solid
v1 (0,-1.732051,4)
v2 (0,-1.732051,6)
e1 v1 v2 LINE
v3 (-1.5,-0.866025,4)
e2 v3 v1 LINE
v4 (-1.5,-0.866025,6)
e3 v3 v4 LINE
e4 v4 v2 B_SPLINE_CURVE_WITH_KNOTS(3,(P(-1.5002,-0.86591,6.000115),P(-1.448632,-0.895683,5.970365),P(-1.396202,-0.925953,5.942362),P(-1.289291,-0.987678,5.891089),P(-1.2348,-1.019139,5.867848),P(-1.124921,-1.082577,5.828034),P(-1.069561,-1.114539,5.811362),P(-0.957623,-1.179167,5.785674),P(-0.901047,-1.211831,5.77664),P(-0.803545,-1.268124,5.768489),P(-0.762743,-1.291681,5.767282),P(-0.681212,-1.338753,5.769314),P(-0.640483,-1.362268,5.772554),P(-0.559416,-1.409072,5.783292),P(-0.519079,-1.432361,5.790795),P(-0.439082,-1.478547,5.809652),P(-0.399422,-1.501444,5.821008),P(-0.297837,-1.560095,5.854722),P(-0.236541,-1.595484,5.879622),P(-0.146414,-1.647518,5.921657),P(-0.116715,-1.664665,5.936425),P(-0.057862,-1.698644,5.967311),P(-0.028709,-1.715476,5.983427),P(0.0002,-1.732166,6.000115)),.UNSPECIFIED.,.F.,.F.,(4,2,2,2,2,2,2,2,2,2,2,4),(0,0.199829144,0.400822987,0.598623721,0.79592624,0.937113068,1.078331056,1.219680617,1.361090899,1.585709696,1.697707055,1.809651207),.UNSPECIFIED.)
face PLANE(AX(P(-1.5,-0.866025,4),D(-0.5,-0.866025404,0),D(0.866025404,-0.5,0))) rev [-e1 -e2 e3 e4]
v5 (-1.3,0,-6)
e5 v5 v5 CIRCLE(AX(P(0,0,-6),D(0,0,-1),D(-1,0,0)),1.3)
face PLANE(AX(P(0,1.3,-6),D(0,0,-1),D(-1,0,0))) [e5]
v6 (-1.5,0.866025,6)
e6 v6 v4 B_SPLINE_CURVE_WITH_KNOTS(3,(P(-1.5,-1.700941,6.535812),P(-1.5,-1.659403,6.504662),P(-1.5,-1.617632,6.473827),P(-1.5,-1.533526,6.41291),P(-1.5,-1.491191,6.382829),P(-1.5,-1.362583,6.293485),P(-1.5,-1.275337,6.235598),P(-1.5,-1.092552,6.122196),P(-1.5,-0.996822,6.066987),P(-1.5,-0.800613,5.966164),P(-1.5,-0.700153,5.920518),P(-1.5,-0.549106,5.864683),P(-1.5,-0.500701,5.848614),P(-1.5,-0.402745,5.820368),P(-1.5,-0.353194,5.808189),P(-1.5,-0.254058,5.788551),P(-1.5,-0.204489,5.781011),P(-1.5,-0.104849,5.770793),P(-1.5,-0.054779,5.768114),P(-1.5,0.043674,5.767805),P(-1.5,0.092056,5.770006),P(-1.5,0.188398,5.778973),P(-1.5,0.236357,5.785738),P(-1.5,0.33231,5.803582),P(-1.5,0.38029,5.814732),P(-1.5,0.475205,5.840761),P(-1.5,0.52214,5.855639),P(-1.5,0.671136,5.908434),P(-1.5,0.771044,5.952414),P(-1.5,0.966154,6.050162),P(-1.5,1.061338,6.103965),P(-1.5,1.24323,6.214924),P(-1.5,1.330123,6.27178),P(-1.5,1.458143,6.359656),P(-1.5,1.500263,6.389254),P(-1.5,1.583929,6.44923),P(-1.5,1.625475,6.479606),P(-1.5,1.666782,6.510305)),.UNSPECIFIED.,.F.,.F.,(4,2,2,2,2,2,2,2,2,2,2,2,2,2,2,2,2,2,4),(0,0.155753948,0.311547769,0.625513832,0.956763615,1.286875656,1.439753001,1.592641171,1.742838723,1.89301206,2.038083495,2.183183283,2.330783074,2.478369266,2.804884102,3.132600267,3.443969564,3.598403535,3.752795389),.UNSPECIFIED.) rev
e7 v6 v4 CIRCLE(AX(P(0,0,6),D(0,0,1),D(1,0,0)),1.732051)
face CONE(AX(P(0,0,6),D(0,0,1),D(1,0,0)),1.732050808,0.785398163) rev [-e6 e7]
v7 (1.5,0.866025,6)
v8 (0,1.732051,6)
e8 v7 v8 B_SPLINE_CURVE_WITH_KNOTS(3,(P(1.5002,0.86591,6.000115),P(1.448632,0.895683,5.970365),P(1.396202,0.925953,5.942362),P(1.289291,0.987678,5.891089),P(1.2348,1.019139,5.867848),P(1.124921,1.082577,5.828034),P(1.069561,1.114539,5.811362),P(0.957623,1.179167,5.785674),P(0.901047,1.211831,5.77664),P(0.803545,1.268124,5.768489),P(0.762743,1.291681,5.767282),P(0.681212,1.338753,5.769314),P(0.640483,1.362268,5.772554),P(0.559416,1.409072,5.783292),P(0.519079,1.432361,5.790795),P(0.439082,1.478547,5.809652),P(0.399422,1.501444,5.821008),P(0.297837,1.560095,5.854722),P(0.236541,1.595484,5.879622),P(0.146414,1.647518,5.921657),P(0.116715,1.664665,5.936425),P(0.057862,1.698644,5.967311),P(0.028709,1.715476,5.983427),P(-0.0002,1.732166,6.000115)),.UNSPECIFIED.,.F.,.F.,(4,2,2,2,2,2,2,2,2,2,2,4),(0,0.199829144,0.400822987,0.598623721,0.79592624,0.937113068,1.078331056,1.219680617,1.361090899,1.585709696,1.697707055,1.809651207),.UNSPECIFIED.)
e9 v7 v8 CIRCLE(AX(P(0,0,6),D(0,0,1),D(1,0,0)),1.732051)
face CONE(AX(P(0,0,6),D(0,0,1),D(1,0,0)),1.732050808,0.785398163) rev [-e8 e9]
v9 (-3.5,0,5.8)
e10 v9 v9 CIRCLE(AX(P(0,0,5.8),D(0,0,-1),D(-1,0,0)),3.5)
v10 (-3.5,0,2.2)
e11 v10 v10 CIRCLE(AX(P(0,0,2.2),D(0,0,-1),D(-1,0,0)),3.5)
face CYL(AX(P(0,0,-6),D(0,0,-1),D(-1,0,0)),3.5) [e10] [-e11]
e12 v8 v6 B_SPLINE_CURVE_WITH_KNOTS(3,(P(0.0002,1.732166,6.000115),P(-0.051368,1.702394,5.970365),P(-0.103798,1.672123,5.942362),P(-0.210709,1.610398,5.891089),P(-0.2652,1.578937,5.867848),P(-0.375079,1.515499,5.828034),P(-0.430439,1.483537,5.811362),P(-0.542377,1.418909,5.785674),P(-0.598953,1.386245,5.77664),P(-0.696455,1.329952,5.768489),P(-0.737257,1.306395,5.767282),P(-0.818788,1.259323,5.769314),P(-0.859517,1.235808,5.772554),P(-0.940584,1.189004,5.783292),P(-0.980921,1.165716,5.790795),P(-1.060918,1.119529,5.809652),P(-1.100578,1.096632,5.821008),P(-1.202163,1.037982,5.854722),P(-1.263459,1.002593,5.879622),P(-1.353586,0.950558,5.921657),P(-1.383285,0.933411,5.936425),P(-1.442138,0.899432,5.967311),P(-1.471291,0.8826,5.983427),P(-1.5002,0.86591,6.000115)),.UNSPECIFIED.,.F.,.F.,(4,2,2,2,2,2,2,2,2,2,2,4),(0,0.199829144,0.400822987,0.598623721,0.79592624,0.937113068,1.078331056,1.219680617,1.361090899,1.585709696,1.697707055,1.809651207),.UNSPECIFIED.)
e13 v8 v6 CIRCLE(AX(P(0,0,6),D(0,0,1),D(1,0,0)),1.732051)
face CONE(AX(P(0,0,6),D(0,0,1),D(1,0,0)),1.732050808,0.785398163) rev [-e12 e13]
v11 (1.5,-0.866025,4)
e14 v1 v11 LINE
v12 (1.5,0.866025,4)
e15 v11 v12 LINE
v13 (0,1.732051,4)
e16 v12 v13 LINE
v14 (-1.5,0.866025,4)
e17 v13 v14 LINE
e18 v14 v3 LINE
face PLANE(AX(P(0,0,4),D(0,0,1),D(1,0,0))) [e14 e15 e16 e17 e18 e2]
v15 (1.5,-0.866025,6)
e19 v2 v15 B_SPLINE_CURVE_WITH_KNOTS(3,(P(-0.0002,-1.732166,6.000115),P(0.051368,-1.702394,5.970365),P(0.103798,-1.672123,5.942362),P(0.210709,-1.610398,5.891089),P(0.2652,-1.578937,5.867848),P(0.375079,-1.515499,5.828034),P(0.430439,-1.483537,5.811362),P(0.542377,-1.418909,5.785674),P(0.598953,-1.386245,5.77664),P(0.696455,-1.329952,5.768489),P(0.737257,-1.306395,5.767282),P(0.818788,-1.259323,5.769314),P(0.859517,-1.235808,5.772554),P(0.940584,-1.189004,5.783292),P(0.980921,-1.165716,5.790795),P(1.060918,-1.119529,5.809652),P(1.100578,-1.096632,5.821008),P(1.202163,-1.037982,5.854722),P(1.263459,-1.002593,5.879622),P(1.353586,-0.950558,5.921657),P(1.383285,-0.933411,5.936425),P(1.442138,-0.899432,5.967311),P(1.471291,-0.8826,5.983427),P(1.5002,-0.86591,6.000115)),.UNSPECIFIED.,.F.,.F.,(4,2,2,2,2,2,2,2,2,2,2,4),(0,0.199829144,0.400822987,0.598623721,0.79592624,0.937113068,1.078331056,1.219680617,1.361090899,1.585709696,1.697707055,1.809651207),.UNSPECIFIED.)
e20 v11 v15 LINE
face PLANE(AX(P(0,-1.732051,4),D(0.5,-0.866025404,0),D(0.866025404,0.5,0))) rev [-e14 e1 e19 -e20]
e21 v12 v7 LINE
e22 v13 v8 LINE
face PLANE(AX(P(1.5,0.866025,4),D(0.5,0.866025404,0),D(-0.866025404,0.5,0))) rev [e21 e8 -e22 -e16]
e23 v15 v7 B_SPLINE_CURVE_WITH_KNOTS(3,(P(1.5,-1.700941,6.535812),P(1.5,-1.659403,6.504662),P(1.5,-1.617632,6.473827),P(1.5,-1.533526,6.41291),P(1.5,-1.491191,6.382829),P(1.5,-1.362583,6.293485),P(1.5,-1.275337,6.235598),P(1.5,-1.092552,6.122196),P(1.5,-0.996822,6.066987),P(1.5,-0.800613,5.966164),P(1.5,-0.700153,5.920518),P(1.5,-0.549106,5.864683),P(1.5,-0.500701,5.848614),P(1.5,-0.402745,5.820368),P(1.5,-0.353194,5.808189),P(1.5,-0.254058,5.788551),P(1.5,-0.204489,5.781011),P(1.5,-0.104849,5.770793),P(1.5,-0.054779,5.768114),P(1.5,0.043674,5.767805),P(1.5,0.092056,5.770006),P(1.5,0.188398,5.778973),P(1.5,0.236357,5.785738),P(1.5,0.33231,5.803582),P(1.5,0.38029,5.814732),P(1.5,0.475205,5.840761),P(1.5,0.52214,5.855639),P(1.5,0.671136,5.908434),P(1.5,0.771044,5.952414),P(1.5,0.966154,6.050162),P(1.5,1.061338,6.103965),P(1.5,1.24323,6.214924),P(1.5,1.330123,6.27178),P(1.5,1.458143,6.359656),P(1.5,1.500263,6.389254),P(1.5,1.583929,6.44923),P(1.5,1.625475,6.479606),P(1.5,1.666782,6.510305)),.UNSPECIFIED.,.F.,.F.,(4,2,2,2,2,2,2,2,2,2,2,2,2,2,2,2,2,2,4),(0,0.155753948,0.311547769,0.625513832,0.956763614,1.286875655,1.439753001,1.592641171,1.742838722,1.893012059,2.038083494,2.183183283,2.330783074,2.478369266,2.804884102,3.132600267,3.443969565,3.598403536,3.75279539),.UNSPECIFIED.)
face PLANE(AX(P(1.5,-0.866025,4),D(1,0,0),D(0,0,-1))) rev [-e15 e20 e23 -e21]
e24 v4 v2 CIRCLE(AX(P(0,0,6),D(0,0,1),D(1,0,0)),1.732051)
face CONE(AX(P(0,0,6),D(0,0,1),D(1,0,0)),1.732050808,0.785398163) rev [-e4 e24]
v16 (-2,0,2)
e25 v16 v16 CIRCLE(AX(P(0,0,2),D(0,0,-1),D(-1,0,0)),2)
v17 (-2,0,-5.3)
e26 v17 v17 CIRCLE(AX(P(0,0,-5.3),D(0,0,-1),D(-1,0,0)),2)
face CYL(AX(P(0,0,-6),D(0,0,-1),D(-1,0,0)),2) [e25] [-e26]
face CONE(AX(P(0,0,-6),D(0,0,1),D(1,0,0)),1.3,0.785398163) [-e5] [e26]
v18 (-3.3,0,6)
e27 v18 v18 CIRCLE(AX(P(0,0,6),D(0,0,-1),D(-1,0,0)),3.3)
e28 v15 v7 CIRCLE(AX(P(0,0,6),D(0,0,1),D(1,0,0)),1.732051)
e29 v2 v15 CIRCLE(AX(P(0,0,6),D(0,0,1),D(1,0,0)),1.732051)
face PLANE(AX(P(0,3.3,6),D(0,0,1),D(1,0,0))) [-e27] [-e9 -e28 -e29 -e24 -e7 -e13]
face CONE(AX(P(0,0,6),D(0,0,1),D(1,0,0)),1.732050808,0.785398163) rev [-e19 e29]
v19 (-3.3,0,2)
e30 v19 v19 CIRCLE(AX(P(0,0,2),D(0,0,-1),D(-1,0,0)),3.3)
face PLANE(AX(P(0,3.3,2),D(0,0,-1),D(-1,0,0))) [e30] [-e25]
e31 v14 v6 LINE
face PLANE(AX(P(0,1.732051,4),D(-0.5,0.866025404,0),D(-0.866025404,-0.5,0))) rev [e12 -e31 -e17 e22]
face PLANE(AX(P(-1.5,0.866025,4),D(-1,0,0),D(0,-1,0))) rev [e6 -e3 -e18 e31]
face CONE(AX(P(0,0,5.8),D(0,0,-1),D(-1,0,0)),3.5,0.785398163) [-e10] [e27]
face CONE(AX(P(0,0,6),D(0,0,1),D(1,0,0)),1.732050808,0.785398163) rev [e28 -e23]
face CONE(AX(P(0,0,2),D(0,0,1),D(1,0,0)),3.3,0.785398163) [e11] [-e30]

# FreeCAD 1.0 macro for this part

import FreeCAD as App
import Part
import Sketcher
Q = App.Units.Quantity


def add_polygon(sketch, points):
    """Adds a closed chain of lines whose ends are joined by coincident constraints."""
    first, n = sketch.GeometryCount, len(points)
    for a, b in zip(points, points[1:] + points[:1]):
        sketch.addGeometry(Part.LineSegment(App.Vector(*a, 0), App.Vector(*b, 0)), False)
    for i in range(n):
        sketch.addConstraint(Sketcher.Constraint("Coincident", first + i, 2, first + (i + 1) % n, 1))

doc = App.newDocument("Part")
params = doc.addObject("Spreadsheet::Sheet", "Params")
for row, (alias, value) in enumerate([
    ("sketch1_height", "12 mm"),
    ("sketch1_width", "3.3 mm"),
    ("sketch1_width2", "1.3 mm"),
    ("sketch1_height2", "3.6 mm"),
    ("sketch1_height3", "7.3 mm"),
    ("revolution_angle", "360 deg"),
    ("pocket1_length", "2 mm"),
    ("pocket2_length", "0.5 mm"),
    ("pocket2_taper", "-45 deg"),
], start=1):
    params.set(f"A{row}", alias)
    params.set(f"B{row}", "=" + value)
    params.setAlias(f"B{row}", alias)

body = doc.addObject("PartDesign::Body", "Body")

sketch1 = body.newObject("Sketcher::SketchObject", "Sketch")
sketch1.AttachmentSupport = (doc.getObject("YZ_Plane"), [""])
sketch1.MapMode = "FlatFace"
add_polygon(sketch1, [(3.5, 2.2), (3.5, 5.8), (3.3, 6), (0, 6), (0, -6), (1.3, -6), (2, -5.3), (2, 2), (3.3, 2)])
sketch1.addConstraint([
    Sketcher.Constraint("Vertical", 0),
    Sketcher.Constraint("Horizontal", 2),
    Sketcher.Constraint("Vertical", 3),
    Sketcher.Constraint("Horizontal", 4),
    Sketcher.Constraint("Vertical", 6),
    Sketcher.Constraint("Horizontal", 7),
    Sketcher.Constraint("Symmetric", 2, 2, 3, 2, -1, 1),
    Sketcher.Constraint("Perpendicular", 1, 5),
    Sketcher.Constraint("Parallel", 5, 8),
    Sketcher.Constraint("Vertical", 1, 2, 7, 2),
    Sketcher.Constraint("Equal", 4, 7),
    Sketcher.Constraint("Equal", 1, 8),
    Sketcher.Constraint("DistanceY", 3, 2, 3, 1, 12.0),
    Sketcher.Constraint("DistanceX", 2, 2, 2, 1, 3.3),
    Sketcher.Constraint("DistanceX", 4, 1, 4, 2, 1.3),
    Sketcher.Constraint("DistanceY", 0, 1, 0, 2, 3.6),
    Sketcher.Constraint("DistanceY", 6, 1, 6, 2, 7.3),
])
sketch1.setExpression("Constraints[21]", "Params.sketch1_height")
sketch1.setExpression("Constraints[22]", "Params.sketch1_width")
sketch1.setExpression("Constraints[23]", "Params.sketch1_width2")
sketch1.setExpression("Constraints[24]", "Params.sketch1_height2")
sketch1.setExpression("Constraints[25]", "Params.sketch1_height3")
revolution = body.newObject("PartDesign::Revolution", "Revolution")
revolution.Profile = sketch1
revolution.ReferenceAxis = (sketch1, ["V_Axis"])
revolution.setExpression("Angle", "Params.revolution_angle")

sketch2 = body.newObject("Sketcher::SketchObject", "Sketch001")
sketch2.AttachmentSupport = (doc.getObject("XY_Plane"), [""])
sketch2.MapMode = "FlatFace"
sketch2.AttachmentOffset = App.Placement(App.Vector(0, 0, 4), App.Rotation())
add_polygon(sketch2, [(0, 1.7), (-1.5, 0.9), (-1.5, -0.9), (0, -1.7), (1.5, -0.9), (1.5, 0.9)])
sketch2.addConstraint([
    Sketcher.Constraint("Vertical", 1),
    Sketcher.Constraint("Vertical", 4),
    Sketcher.Constraint("Symmetric", 0, 2, 3, 2, -1, 1),
    Sketcher.Constraint("Symmetric", 2, 2, 5, 2, -1, 1),
    Sketcher.Constraint("PointOnObject", 2, 2, -2),
    Sketcher.Constraint("Parallel", 2, 5),
    Sketcher.Constraint("Horizontal", 1, 2, 3, 2),
    Sketcher.Constraint("Angle", 0, Q("-150 deg")),
    Sketcher.Constraint("DistanceX", 1, 2, 3, 2, 3.0),
    Sketcher.Constraint("DistanceY", 1, 2, 1, 1, 1.732051),
])
pocket1 = body.newObject("PartDesign::Pocket", "Pocket")
pocket1.Profile = sketch2
pocket1.setExpression("Length", "Params.pocket1_length")
pocket1.Reversed = True

sketch3 = body.newObject("Sketcher::SketchObject", "Sketch002")
sketch3.AttachmentSupport = (doc.getObject("XY_Plane"), [""])
sketch3.MapMode = "FlatFace"
sketch3.AttachmentOffset = App.Placement(App.Vector(0, 0, 6), App.Rotation())
sketch3.addGeometry(Part.Circle(App.Vector(0, 0, 0), App.Vector(0, 0, 1), 1.7), False)
sketch3.addConstraint([
    Sketcher.Constraint("Coincident", 0, 3, -1, 1),
    Sketcher.Constraint("Diameter", 0, 3.464102),
])
pocket2 = body.newObject("PartDesign::Pocket", "Pocket001")
pocket2.Profile = sketch3
pocket2.setExpression("Length", "Params.pocket2_length")
pocket2.setExpression("TaperAngle", "Params.pocket2_taper")

doc.recompute()
